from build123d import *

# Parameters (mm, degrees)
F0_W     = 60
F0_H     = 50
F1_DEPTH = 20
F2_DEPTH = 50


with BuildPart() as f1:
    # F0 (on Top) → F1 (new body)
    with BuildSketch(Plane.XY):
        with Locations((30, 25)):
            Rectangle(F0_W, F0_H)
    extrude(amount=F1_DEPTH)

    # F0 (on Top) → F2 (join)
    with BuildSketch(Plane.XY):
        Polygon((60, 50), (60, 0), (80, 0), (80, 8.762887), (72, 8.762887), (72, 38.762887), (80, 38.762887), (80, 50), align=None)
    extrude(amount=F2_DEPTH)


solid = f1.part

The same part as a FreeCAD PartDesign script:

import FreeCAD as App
import Part
import Sketcher

V = App.Vector

doc = App.newDocument("Part")
body = doc.addObject("PartDesign::Body", "Body")

sketch1 = body.newObject("Sketcher::SketchObject", "Sketch")
sketch1.AttachmentSupport = (doc.getObject("XY_Plane"), [""])
sketch1.MapMode = "FlatFace"
sketch1.addGeometry(Part.LineSegment(V(0, 50, 0), V(0, 0, 0)), False)
sketch1.addGeometry(Part.LineSegment(V(0, 0, 0), V(60, 0, 0)), False)
sketch1.addGeometry(Part.LineSegment(V(60, 0, 0), V(60, 50, 0)), False)
sketch1.addGeometry(Part.LineSegment(V(60, 50, 0), V(0, 50, 0)), False)
sketch1.addConstraint(Sketcher.Constraint("Coincident", 0, 2, 1, 1))
sketch1.addConstraint(Sketcher.Constraint("Coincident", 1, 2, 2, 1))
sketch1.addConstraint(Sketcher.Constraint("Coincident", 2, 2, 3, 1))
sketch1.addConstraint(Sketcher.Constraint("Coincident", 3, 2, 0, 1))
sketch1.addConstraint(Sketcher.Constraint("Vertical", 0))
sketch1.addConstraint(Sketcher.Constraint("Horizontal", 1))
sketch1.addConstraint(Sketcher.Constraint("Vertical", 2))
sketch1.addConstraint(Sketcher.Constraint("Horizontal", 3))
sketch1.addConstraint(Sketcher.Constraint("Coincident", 0, 2, -1, 1))
sketch1.addConstraint(Sketcher.Constraint("DistanceX", 1, 1, 1, 2, 60.0))
sketch1.addConstraint(Sketcher.Constraint("DistanceY", 0, 2, 0, 1, 50.0))
pad1 = body.newObject("PartDesign::Pad", "Pad")
pad1.Profile = sketch1
pad1.Length = 20

sketch2 = body.newObject("Sketcher::SketchObject", "Sketch001")
sketch2.AttachmentSupport = (doc.getObject("XY_Plane"), [""])
sketch2.MapMode = "FlatFace"
sketch2.addGeometry(Part.LineSegment(V(60, 50, 0), V(60, 0, 0)), False)
sketch2.addGeometry(Part.LineSegment(V(60, 0, 0), V(80, 0, 0)), False)
sketch2.addGeometry(Part.LineSegment(V(80, 0, 0), V(80, 9, 0)), False)
sketch2.addGeometry(Part.LineSegment(V(80, 9, 0), V(72, 9, 0)), False)
sketch2.addGeometry(Part.LineSegment(V(72, 9, 0), V(72, 39, 0)), False)
sketch2.addGeometry(Part.LineSegment(V(72, 39, 0), V(80, 39, 0)), False)
sketch2.addGeometry(Part.LineSegment(V(80, 39, 0), V(80, 50, 0)), False)
sketch2.addGeometry(Part.LineSegment(V(80, 50, 0), V(60, 50, 0)), False)
sketch2.addConstraint(Sketcher.Constraint("Coincident", 0, 2, 1, 1))
sketch2.addConstraint(Sketcher.Constraint("Coincident", 1, 2, 2, 1))
sketch2.addConstraint(Sketcher.Constraint("Coincident", 2, 2, 3, 1))
sketch2.addConstraint(Sketcher.Constraint("Coincident", 3, 2, 4, 1))
sketch2.addConstraint(Sketcher.Constraint("Coincident", 4, 2, 5, 1))
sketch2.addConstraint(Sketcher.Constraint("Coincident", 5, 2, 6, 1))
sketch2.addConstraint(Sketcher.Constraint("Coincident", 6, 2, 7, 1))
sketch2.addConstraint(Sketcher.Constraint("Coincident", 7, 2, 0, 1))
sketch2.addConstraint(Sketcher.Constraint("Vertical", 0))
sketch2.addConstraint(Sketcher.Constraint("Horizontal", 1))
sketch2.addConstraint(Sketcher.Constraint("Vertical", 2))
sketch2.addConstraint(Sketcher.Constraint("Horizontal", 3))
sketch2.addConstraint(Sketcher.Constraint("Vertical", 4))
sketch2.addConstraint(Sketcher.Constraint("Horizontal", 5))
sketch2.addConstraint(Sketcher.Constraint("Vertical", 6))
sketch2.addConstraint(Sketcher.Constraint("Horizontal", 7))
sketch2.addConstraint(Sketcher.Constraint("PointOnObject", 0, 2, -1))
sketch2.addConstraint(Sketcher.Constraint("Vertical", 2, 2, 5, 2))
sketch2.addConstraint(Sketcher.Constraint("DistanceX", 1, 1, 1, 2, 20.0))
sketch2.addConstraint(Sketcher.Constraint("DistanceX", 3, 2, 3, 1, 8.0))
sketch2.addConstraint(Sketcher.Constraint("DistanceY", 0, 2, 0, 1, 50.0))
sketch2.addConstraint(Sketcher.Constraint("DistanceY", 4, 1, 4, 2, 30.0))
sketch2.addConstraint(Sketcher.Constraint("DistanceX", -1, 1, 0, 2, 60.0))
sketch2.addConstraint(Sketcher.Constraint("DistanceY", 2, 1, 2, 2, 8.762887))
pad2 = body.newObject("PartDesign::Pad", "Pad001")
pad2.Profile = sketch2
pad2.Length = 50

doc.recompute()
